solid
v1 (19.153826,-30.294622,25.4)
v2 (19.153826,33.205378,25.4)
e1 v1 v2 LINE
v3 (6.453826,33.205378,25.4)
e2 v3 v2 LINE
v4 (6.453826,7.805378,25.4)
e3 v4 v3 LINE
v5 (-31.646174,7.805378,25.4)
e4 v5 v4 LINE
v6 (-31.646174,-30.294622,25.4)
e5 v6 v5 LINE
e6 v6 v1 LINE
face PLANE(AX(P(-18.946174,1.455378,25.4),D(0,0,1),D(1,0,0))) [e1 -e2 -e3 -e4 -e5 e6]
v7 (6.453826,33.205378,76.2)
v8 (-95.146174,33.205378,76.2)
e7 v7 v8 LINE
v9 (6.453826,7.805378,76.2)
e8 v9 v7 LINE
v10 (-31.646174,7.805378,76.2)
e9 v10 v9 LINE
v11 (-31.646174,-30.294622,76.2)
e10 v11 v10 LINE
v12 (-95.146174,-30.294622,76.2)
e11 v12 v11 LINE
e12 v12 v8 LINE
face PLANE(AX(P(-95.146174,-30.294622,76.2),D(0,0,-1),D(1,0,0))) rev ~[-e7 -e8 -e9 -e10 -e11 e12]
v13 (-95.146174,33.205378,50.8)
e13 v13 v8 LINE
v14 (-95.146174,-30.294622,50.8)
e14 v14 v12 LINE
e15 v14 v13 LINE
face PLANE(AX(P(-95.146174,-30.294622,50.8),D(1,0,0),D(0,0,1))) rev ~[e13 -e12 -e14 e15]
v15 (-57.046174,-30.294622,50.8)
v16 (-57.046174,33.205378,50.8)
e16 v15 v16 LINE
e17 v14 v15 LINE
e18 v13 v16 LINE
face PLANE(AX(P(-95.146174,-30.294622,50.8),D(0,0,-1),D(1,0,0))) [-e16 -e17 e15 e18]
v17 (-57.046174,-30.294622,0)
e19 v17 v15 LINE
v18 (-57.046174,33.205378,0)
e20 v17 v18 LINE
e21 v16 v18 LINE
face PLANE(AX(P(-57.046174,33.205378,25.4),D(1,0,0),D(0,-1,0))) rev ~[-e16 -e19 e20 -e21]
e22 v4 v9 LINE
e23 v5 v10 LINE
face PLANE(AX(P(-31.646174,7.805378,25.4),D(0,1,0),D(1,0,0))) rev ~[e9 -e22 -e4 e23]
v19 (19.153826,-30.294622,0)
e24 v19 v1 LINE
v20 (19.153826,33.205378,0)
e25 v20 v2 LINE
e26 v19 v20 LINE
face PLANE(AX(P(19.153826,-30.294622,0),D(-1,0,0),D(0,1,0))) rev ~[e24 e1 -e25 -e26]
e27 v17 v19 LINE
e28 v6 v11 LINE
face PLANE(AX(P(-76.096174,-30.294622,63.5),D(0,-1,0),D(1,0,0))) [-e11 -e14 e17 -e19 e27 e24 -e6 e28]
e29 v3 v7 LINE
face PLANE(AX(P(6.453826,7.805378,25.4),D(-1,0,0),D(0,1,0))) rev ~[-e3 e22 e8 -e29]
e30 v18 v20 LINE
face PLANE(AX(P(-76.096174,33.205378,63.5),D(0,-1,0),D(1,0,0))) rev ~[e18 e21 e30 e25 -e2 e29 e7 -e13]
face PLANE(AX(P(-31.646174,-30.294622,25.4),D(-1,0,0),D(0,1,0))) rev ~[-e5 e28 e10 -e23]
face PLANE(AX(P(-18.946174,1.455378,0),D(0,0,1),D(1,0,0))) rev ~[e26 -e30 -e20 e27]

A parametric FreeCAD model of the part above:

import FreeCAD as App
import Part
import Sketcher

V = App.Vector
Q = App.Units.Quantity


def add_polygon(sketch, points):
    """Adds a closed chain of lines whose ends are joined by coincident constraints."""
    first, n = sketch.GeometryCount, len(points)
    for a, b in zip(points, points[1:] + points[:1]):
        sketch.addGeometry(Part.LineSegment(App.Vector(*a, 0), App.Vector(*b, 0)), False)
    for i in range(n):
        sketch.addConstraint(Sketcher.Constraint("Coincident", first + i, 2, first + (i + 1) % n, 1))

doc = App.newDocument("Part")
body = doc.addObject("PartDesign::Body", "Body")

# Sketch on XY plane
sketch1 = body.newObject("Sketcher::SketchObject", "Sketch")
sketch1.AttachmentSupport = (doc.getObject("XY_Plane"), [""])
sketch1.MapMode = "FlatFace"
add_polygon(sketch1, [(-57, 33), (-57, -30), (19, -30), (19, 33)])  # lines 0-3
sketch1.addConstraint([
    Sketcher.Constraint("Vertical", 0),
    Sketcher.Constraint("Horizontal", 1),
    Sketcher.Constraint("Vertical", 2),
    Sketcher.Constraint("Horizontal", 3),
    Sketcher.Constraint("DistanceX", 1, 1, 1, 2, Q("3 in")),
    Sketcher.Constraint("DistanceY", 0, 2, 0, 1, Q("2.5 in")),
    Sketcher.Constraint("DistanceY", -1, 1, 2, 2, Q("33.205378 mm")),
    Sketcher.Constraint("DistanceX", 0, 2, -1, 1, Q("57.046174 mm")),
])
pad1 = body.newObject("PartDesign::Pad", "Pad")
pad1.Profile = sketch1
pad1.Length = Q("1 in")

# Sketch on XY plane
sketch2 = body.newObject("Sketcher::SketchObject", "Sketch001")
sketch2.AttachmentSupport = (doc.getObject("XY_Plane"), [""])
sketch2.MapMode = "FlatFace"
sketch2.AttachmentOffset = App.Placement(V(0, 0, 1 * 25.4), App.Rotation())
add_polygon(sketch2, [(-57, 33), (-57, -30), (-32, -30), (-32, 8), (6, 8), (6, 33)])  # lines 0-5
sketch2.addConstraint([
    Sketcher.Constraint("Vertical", 0),
    Sketcher.Constraint("Horizontal", 1),
    Sketcher.Constraint("Vertical", 2),
    Sketcher.Constraint("Horizontal", 3),
    Sketcher.Constraint("Vertical", 4),
    Sketcher.Constraint("Horizontal", 5),
    Sketcher.Constraint("Equal", 5, 0),
    Sketcher.Constraint("Equal", 3, 2),
    Sketcher.Constraint("DistanceX", 1, 1, 1, 2, Q("1 in")),
    Sketcher.Constraint("DistanceX", 3, 1, 3, 2, Q("1.5 in")),
    Sketcher.Constraint("DistanceY", -1, 1, 4, 2, Q("33.205378 mm")),
    Sketcher.Constraint("DistanceX", 0, 2, -1, 1, Q("57.046174 mm")),
])
pad2 = body.newObject("PartDesign::Pad", "Pad001")
pad2.Profile = sketch2
pad2.Length = Q("2 in")

# Sketch on XZ plane
sketch3 = body.newObject("Sketcher::SketchObject", "Sketch002")
sketch3.AttachmentSupport = (doc.getObject("XZ_Plane"), [""])
sketch3.MapMode = "FlatFace"
sketch3.AttachmentOffset = App.Placement(V(0, 0, 30.294622), App.Rotation())
add_polygon(sketch3, [(-95, 76), (-95, 51), (-57, 51), (-57, 76)])  # lines 0-3
sketch3.addConstraint([
    Sketcher.Constraint("Vertical", 0),
    Sketcher.Constraint("Horizontal", 1),
    Sketcher.Constraint("Vertical", 2),
    Sketcher.Constraint("Horizontal", 3),
    Sketcher.Constraint("DistanceY", 0, 2, 0, 1, Q("1 in")),
    Sketcher.Constraint("DistanceX", 1, 1, 1, 2, Q("1.5 in")),
    Sketcher.Constraint("DistanceY", -1, 1, 0, 2, Q("2 in")),
    Sketcher.Constraint("DistanceX", 0, 2, -1, 1, Q("95.146174 mm")),
])
pad3 = body.newObject("PartDesign::Pad", "Pad002")
pad3.Profile = sketch3
pad3.Length = Q("2.5 in")
pad3.Reversed = True

doc.recompute()
